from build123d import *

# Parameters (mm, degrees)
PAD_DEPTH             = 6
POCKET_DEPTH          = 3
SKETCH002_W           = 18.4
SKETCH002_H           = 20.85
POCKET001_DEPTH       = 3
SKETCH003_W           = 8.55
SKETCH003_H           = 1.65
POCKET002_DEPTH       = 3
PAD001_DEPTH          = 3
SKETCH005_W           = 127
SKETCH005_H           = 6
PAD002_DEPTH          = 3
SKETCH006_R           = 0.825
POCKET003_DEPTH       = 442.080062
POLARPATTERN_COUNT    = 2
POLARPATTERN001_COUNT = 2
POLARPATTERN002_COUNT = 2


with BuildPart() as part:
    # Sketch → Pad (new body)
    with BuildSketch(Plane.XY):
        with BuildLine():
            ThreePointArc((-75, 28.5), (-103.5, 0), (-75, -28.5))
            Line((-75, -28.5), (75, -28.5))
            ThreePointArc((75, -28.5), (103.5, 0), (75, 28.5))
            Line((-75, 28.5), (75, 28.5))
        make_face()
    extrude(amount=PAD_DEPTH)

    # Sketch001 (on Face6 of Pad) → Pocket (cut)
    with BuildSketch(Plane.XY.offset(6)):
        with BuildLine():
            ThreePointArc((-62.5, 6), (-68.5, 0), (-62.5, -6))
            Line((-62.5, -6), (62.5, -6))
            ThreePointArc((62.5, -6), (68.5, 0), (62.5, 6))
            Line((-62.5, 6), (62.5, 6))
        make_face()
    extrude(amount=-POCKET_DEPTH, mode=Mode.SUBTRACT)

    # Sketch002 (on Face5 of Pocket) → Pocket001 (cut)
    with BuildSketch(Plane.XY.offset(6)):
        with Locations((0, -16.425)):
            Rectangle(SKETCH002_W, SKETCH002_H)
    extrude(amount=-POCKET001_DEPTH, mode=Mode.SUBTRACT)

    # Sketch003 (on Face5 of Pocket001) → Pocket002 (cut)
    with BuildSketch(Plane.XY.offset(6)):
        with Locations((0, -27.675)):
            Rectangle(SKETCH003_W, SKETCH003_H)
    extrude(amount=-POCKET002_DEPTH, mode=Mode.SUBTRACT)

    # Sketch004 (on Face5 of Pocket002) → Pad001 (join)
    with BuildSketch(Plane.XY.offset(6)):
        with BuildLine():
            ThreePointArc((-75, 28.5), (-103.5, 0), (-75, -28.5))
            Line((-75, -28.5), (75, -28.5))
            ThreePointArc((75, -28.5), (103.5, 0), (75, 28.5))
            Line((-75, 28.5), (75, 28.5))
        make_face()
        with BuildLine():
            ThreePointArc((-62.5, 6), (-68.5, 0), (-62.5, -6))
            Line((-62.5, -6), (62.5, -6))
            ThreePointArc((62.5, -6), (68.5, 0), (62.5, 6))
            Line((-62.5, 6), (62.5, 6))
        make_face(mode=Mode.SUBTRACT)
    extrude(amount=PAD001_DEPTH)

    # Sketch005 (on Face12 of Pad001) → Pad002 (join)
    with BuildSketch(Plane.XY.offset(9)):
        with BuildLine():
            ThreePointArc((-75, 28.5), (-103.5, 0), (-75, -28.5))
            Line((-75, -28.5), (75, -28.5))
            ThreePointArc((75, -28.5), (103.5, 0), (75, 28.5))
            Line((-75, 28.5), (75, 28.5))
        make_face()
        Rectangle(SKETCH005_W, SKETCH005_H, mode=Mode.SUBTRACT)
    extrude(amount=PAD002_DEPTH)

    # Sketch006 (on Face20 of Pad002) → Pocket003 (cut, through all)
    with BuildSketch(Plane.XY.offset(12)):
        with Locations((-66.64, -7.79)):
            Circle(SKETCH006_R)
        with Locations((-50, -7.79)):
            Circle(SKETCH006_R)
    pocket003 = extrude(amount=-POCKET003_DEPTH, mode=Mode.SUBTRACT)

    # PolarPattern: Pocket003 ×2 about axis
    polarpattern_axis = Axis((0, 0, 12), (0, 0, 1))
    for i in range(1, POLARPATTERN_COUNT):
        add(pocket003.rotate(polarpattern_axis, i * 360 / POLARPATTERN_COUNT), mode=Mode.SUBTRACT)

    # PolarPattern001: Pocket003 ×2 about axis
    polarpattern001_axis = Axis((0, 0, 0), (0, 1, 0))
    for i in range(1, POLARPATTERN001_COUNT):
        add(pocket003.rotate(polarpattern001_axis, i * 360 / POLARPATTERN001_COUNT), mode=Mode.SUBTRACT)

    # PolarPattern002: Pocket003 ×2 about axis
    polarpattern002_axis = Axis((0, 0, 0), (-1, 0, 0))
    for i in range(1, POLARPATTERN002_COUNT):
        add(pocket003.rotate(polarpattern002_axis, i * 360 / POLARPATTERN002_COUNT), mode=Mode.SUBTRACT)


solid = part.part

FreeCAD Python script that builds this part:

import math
import FreeCAD as App
import Part
import Sketcher
Q = App.Units.Quantity


def add_polygon(sketch, points):
    """Adds a closed chain of lines whose ends are joined by coincident constraints."""
    first, n = sketch.GeometryCount, len(points)
    for a, b in zip(points, points[1:] + points[:1]):
        sketch.addGeometry(Part.LineSegment(App.Vector(*a, 0), App.Vector(*b, 0)), False)
    for i in range(n):
        sketch.addConstraint(Sketcher.Constraint("Coincident", first + i, 2, first + (i + 1) % n, 1))

doc = App.newDocument("Part")
body = doc.addObject("PartDesign::Body", "Body")

sketch1 = doc.addObject("Sketcher::SketchObject", "Sketch")
body.addObject(sketch1)
sketch1.AttachmentSupport = (doc.XY_Plane, [""])
sketch1.MapMode = "FlatFace"
sketch1.addGeometry([
    Part.ArcOfCircle(Part.Circle(App.Vector(-75, 0, 0), App.Vector(0, 0, 1), 28), math.radians(90), math.radians(270)),
    Part.LineSegment(App.Vector(-75, -28, 0), App.Vector(75, -28, 0)),
    Part.ArcOfCircle(Part.Circle(App.Vector(75, 0, 0), App.Vector(0, 0, 1), 28), math.radians(-90), math.radians(90)),
    Part.LineSegment(App.Vector(75, 28, 0), App.Vector(-75, 28, 0)),
], False)
sketch1.addConstraint([
    Sketcher.Constraint("Tangent", 0, 2, 1, 1),
    Sketcher.Constraint("Tangent", 1, 2, 2, 1),
    Sketcher.Constraint("Tangent", 2, 2, 3, 1),
    Sketcher.Constraint("Tangent", 3, 2, 0, 1),
    Sketcher.Constraint("Horizontal", 1),
    Sketcher.Constraint("Horizontal", 3),
    Sketcher.Constraint("Symmetric", 0, 3, 2, 3, -1, 1),
    Sketcher.Constraint("Radius", 0, Q("28.5 mm")),
    Sketcher.Constraint("DistanceX", 1, 1, 1, 2, Q("150 mm")),
])
pad1 = doc.addObject("PartDesign::Pad", "Pad")
body.addObject(pad1)
pad1.Profile = sketch1
pad1.Length = 6

sketch2 = doc.addObject("Sketcher::SketchObject", "Sketch001")
body.addObject(sketch2)
sketch2.AttachmentSupport = (doc.XY_Plane, [""])
sketch2.MapMode = "FlatFace"
sketch2.AttachmentOffset = App.Placement(App.Vector(0, 0, 6), App.Rotation())
sketch2.addGeometry([
    Part.ArcOfCircle(Part.Circle(App.Vector(-62, 0, 0), App.Vector(0, 0, 1), 6), math.radians(90), math.radians(270)),
    Part.LineSegment(App.Vector(-62, -6, 0), App.Vector(62, -6, 0)),
    Part.ArcOfCircle(Part.Circle(App.Vector(62, 0, 0), App.Vector(0, 0, 1), 6), math.radians(-90), math.radians(90)),
    Part.LineSegment(App.Vector(62, 6, 0), App.Vector(-62, 6, 0)),
], False)
sketch2.addConstraint([
    Sketcher.Constraint("Tangent", 0, 2, 1, 1),
    Sketcher.Constraint("Tangent", 1, 2, 2, 1),
    Sketcher.Constraint("Tangent", 2, 2, 3, 1),
    Sketcher.Constraint("Tangent", 3, 2, 0, 1),
    Sketcher.Constraint("Horizontal", 1),
    Sketcher.Constraint("Horizontal", 3),
    Sketcher.Constraint("Symmetric", 0, 3, 2, 3, -1, 1),
    Sketcher.Constraint("Radius", 0, Q("6 mm")),
    Sketcher.Constraint("DistanceX", 1, 1, 1, 2, Q("125 mm")),
])
pocket1 = doc.addObject("PartDesign::Pocket", "Pocket")
body.addObject(pocket1)
pocket1.Profile = sketch2
pocket1.Length = 3

sketch3 = doc.addObject("Sketcher::SketchObject", "Sketch002")
body.addObject(sketch3)
sketch3.AttachmentSupport = (doc.XY_Plane, [""])
sketch3.MapMode = "FlatFace"
sketch3.AttachmentOffset = App.Placement(App.Vector(0, 0, 6), App.Rotation())
add_polygon(sketch3, [(-9, -6), (-9, -27), (9, -27), (9, -6)])
sketch3.addConstraint([
    Sketcher.Constraint("Vertical", 0),
    Sketcher.Constraint("Horizontal", 1),
    Sketcher.Constraint("Vertical", 2),
    Sketcher.Constraint("Horizontal", 3),
    Sketcher.Constraint("DistanceX", 1, 1, 1, 2, Q("18.4 mm")),
    Sketcher.Constraint("DistanceY", 2, 2, -1, 1, Q("6 mm")),
    Sketcher.Constraint("DistanceY", 0, 2, 0, 1, Q("20.85 mm")),
    Sketcher.Constraint("DistanceX", 0, 2, -1, 1, Q("9.2 mm")),
])
pocket2 = doc.addObject("PartDesign::Pocket", "Pocket001")
body.addObject(pocket2)
pocket2.Profile = sketch3
pocket2.Length = 3

sketch4 = doc.addObject("Sketcher::SketchObject", "Sketch003")
body.addObject(sketch4)
sketch4.AttachmentSupport = (doc.XY_Plane, [""])
sketch4.MapMode = "FlatFace"
sketch4.AttachmentOffset = App.Placement(App.Vector(0, 0, 6), App.Rotation())
add_polygon(sketch4, [(-4.3, -26.9), (-4.3, -28.5), (4.3, -28.5), (4.3, -26.9)])
sketch4.addConstraint([
    Sketcher.Constraint("Vertical", 0),
    Sketcher.Constraint("Horizontal", 1),
    Sketcher.Constraint("Vertical", 2),
    Sketcher.Constraint("Horizontal", 3),
    Sketcher.Constraint("DistanceX", 1, 1, 1, 2, Q("8.55 mm")),
    Sketcher.Constraint("DistanceY", 0, 2, 0, 1, Q("1.65 mm")),
    Sketcher.Constraint("DistanceY", 0, 2, -1, 1, Q("28.5 mm")),
    Sketcher.Constraint("DistanceX", 0, 2, -1, 1, Q("4.275 mm")),
])
pocket3 = doc.addObject("PartDesign::Pocket", "Pocket002")
body.addObject(pocket3)
pocket3.Profile = sketch4
pocket3.Length = 3

sketch5 = doc.addObject("Sketcher::SketchObject", "Sketch004")
body.addObject(sketch5)
sketch5.AttachmentSupport = (doc.XY_Plane, [""])
sketch5.MapMode = "FlatFace"
sketch5.AttachmentOffset = App.Placement(App.Vector(0, 0, 6), App.Rotation())
sketch5.addGeometry([
    Part.ArcOfCircle(Part.Circle(App.Vector(-75, 0, 0), App.Vector(0, 0, 1), 28), math.radians(90), math.radians(270)),
    Part.LineSegment(App.Vector(-75, -28, 0), App.Vector(75, -28, 0)),
    Part.ArcOfCircle(Part.Circle(App.Vector(75, 0, 0), App.Vector(0, 0, 1), 28), math.radians(-90), math.radians(90)),
    Part.LineSegment(App.Vector(75, 28, 0), App.Vector(-75, 28, 0)),
    Part.ArcOfCircle(Part.Circle(App.Vector(-62, 0, 0), App.Vector(0, 0, 1), 6), math.radians(90), math.radians(270)),
    Part.LineSegment(App.Vector(-62, 6, 0), App.Vector(62, 6, 0)),
    Part.ArcOfCircle(Part.Circle(App.Vector(62, 0, 0), App.Vector(0, 0, 1), 6), math.radians(-90), math.radians(90)),
    Part.LineSegment(App.Vector(62, -6, 0), App.Vector(-62, -6, 0)),
], False)
sketch5.addConstraint([
    Sketcher.Constraint("Tangent", 0, 2, 1, 1),
    Sketcher.Constraint("Tangent", 1, 2, 2, 1),
    Sketcher.Constraint("Tangent", 2, 2, 3, 1),
    Sketcher.Constraint("Tangent", 3, 2, 0, 1),
    Sketcher.Constraint("Tangent", 4, 1, 5, 1),
    Sketcher.Constraint("Tangent", 5, 2, 6, 2),
    Sketcher.Constraint("Tangent", 6, 1, 7, 1),
    Sketcher.Constraint("Tangent", 7, 2, 4, 2),
    Sketcher.Constraint("Horizontal", 1),
    Sketcher.Constraint("Horizontal", 3),
    Sketcher.Constraint("Horizontal", 5),
    Sketcher.Constraint("Horizontal", 7),
    Sketcher.Constraint("Symmetric", 0, 3, 2, 3, -1, 1),
    Sketcher.Constraint("Symmetric", 4, 3, 6, 3, -1, 1),
    Sketcher.Constraint("Radius", 4, Q("6 mm")),
    Sketcher.Constraint("Radius", 0, Q("28.5 mm")),
    Sketcher.Constraint("DistanceX", 1, 1, 1, 2, Q("150 mm")),
    Sketcher.Constraint("DistanceX", 5, 1, 5, 2, Q("125 mm")),
])
pad2 = doc.addObject("PartDesign::Pad", "Pad001")
body.addObject(pad2)
pad2.Profile = sketch5
pad2.Length = 3

sketch6 = doc.addObject("Sketcher::SketchObject", "Sketch005")
body.addObject(sketch6)
sketch6.AttachmentSupport = (doc.XY_Plane, [""])
sketch6.MapMode = "FlatFace"
sketch6.AttachmentOffset = App.Placement(App.Vector(0, 0, 9), App.Rotation())
sketch6.addGeometry(Part.ArcOfCircle(Part.Circle(App.Vector(-75, 0, 0), App.Vector(0, 0, 1), 28), math.radians(90), math.radians(270)), False)
sketch6.addGeometry(Part.LineSegment(App.Vector(-75, -28, 0), App.Vector(75, -28, 0)), False)
sketch6.addGeometry(Part.ArcOfCircle(Part.Circle(App.Vector(75, 0, 0), App.Vector(0, 0, 1), 28), math.radians(-90), math.radians(90)), False)
sketch6.addGeometry(Part.LineSegment(App.Vector(75, 28, 0), App.Vector(-75, 28, 0)), False)
add_polygon(sketch6, [(64, -3), (-64, -3), (-64, 3), (64, 3)])
sketch6.addConstraint([
    Sketcher.Constraint("Tangent", 0, 2, 1, 1),
    Sketcher.Constraint("Tangent", 1, 2, 2, 1),
    Sketcher.Constraint("Tangent", 2, 2, 3, 1),
    Sketcher.Constraint("Tangent", 3, 2, 0, 1),
    Sketcher.Constraint("Horizontal", 1),
    Sketcher.Constraint("Horizontal", 3),
    Sketcher.Constraint("Horizontal", 4),
    Sketcher.Constraint("Vertical", 5),
    Sketcher.Constraint("Horizontal", 6),
    Sketcher.Constraint("Vertical", 7),
    Sketcher.Constraint("Symmetric", 0, 3, 2, 3, -1, 1),
    Sketcher.Constraint("Symmetric", 4, 2, 6, 2, -1, 1),
    Sketcher.Constraint("Radius", 0, Q("28.5 mm")),
    Sketcher.Constraint("DistanceX", 1, 1, 1, 2, Q("150 mm")),
    Sketcher.Constraint("DistanceX", 4, 2, 4, 1, Q("127 mm")),
    Sketcher.Constraint("DistanceY", 5, 1, 5, 2, Q("6 mm")),
])
pad3 = doc.addObject("PartDesign::Pad", "Pad002")
body.addObject(pad3)
pad3.Profile = sketch6
pad3.Length = 3

sketch7 = doc.addObject("Sketcher::SketchObject", "Sketch006")
body.addObject(sketch7)
sketch7.AttachmentSupport = (doc.XY_Plane, [""])
sketch7.MapMode = "FlatFace"
sketch7.AttachmentOffset = App.Placement(App.Vector(0, 0, 12), App.Rotation())
sketch7.addGeometry([
    Part.Circle(App.Vector(-66.6, -7.8, 0), App.Vector(0, 0, 1), 0.8),
    Part.Circle(App.Vector(-50, -7.8, 0), App.Vector(0, 0, 1), 0.8),
], False)
sketch7.addConstraint([
    Sketcher.Constraint("Equal", 0, 1),
    Sketcher.Constraint("Horizontal", 0, 3, 1, 3),
    Sketcher.Constraint("Diameter", 0, Q("1.65 mm")),
    Sketcher.Constraint("DistanceX", 1, 3, -1, 1, Q("50 mm")),
    Sketcher.Constraint("DistanceX", 0, 3, -1, 1, Q("66.64 mm")),
    Sketcher.Constraint("DistanceY", 0, 3, -1, 1, Q("7.79 mm")),
])
pocket4 = doc.addObject("PartDesign::Pocket", "Pocket003")
body.addObject(pocket4)
pocket4.Profile = sketch7
pocket4.Type = "ThroughAll"
doc.recompute()

polarpattern = doc.addObject("PartDesign::PolarPattern", "PolarPattern")
body.addObject(polarpattern)
polarpattern.Originals = [pocket4]
polarpattern.Axis = (doc.Z_Axis, [""])
polarpattern.Angle = 360
polarpattern.Occurrences = 2
body.Tip = polarpattern
doc.recompute()

polarpattern2 = doc.addObject("PartDesign::PolarPattern", "PolarPattern001")
body.addObject(polarpattern2)
polarpattern2.Originals = [pocket4]
polarpattern2.Axis = (doc.Y_Axis, [""])
polarpattern2.Angle = 360
polarpattern2.Occurrences = 2
body.Tip = polarpattern2
doc.recompute()

polarpattern3 = doc.addObject("PartDesign::PolarPattern", "PolarPattern002")
body.addObject(polarpattern3)
polarpattern3.Originals = [pocket4]
polarpattern3.Axis = (doc.X_Axis, [""])
polarpattern3.Angle = 360
polarpattern3.Occurrences = 2
body.Tip = polarpattern3

doc.recompute()
